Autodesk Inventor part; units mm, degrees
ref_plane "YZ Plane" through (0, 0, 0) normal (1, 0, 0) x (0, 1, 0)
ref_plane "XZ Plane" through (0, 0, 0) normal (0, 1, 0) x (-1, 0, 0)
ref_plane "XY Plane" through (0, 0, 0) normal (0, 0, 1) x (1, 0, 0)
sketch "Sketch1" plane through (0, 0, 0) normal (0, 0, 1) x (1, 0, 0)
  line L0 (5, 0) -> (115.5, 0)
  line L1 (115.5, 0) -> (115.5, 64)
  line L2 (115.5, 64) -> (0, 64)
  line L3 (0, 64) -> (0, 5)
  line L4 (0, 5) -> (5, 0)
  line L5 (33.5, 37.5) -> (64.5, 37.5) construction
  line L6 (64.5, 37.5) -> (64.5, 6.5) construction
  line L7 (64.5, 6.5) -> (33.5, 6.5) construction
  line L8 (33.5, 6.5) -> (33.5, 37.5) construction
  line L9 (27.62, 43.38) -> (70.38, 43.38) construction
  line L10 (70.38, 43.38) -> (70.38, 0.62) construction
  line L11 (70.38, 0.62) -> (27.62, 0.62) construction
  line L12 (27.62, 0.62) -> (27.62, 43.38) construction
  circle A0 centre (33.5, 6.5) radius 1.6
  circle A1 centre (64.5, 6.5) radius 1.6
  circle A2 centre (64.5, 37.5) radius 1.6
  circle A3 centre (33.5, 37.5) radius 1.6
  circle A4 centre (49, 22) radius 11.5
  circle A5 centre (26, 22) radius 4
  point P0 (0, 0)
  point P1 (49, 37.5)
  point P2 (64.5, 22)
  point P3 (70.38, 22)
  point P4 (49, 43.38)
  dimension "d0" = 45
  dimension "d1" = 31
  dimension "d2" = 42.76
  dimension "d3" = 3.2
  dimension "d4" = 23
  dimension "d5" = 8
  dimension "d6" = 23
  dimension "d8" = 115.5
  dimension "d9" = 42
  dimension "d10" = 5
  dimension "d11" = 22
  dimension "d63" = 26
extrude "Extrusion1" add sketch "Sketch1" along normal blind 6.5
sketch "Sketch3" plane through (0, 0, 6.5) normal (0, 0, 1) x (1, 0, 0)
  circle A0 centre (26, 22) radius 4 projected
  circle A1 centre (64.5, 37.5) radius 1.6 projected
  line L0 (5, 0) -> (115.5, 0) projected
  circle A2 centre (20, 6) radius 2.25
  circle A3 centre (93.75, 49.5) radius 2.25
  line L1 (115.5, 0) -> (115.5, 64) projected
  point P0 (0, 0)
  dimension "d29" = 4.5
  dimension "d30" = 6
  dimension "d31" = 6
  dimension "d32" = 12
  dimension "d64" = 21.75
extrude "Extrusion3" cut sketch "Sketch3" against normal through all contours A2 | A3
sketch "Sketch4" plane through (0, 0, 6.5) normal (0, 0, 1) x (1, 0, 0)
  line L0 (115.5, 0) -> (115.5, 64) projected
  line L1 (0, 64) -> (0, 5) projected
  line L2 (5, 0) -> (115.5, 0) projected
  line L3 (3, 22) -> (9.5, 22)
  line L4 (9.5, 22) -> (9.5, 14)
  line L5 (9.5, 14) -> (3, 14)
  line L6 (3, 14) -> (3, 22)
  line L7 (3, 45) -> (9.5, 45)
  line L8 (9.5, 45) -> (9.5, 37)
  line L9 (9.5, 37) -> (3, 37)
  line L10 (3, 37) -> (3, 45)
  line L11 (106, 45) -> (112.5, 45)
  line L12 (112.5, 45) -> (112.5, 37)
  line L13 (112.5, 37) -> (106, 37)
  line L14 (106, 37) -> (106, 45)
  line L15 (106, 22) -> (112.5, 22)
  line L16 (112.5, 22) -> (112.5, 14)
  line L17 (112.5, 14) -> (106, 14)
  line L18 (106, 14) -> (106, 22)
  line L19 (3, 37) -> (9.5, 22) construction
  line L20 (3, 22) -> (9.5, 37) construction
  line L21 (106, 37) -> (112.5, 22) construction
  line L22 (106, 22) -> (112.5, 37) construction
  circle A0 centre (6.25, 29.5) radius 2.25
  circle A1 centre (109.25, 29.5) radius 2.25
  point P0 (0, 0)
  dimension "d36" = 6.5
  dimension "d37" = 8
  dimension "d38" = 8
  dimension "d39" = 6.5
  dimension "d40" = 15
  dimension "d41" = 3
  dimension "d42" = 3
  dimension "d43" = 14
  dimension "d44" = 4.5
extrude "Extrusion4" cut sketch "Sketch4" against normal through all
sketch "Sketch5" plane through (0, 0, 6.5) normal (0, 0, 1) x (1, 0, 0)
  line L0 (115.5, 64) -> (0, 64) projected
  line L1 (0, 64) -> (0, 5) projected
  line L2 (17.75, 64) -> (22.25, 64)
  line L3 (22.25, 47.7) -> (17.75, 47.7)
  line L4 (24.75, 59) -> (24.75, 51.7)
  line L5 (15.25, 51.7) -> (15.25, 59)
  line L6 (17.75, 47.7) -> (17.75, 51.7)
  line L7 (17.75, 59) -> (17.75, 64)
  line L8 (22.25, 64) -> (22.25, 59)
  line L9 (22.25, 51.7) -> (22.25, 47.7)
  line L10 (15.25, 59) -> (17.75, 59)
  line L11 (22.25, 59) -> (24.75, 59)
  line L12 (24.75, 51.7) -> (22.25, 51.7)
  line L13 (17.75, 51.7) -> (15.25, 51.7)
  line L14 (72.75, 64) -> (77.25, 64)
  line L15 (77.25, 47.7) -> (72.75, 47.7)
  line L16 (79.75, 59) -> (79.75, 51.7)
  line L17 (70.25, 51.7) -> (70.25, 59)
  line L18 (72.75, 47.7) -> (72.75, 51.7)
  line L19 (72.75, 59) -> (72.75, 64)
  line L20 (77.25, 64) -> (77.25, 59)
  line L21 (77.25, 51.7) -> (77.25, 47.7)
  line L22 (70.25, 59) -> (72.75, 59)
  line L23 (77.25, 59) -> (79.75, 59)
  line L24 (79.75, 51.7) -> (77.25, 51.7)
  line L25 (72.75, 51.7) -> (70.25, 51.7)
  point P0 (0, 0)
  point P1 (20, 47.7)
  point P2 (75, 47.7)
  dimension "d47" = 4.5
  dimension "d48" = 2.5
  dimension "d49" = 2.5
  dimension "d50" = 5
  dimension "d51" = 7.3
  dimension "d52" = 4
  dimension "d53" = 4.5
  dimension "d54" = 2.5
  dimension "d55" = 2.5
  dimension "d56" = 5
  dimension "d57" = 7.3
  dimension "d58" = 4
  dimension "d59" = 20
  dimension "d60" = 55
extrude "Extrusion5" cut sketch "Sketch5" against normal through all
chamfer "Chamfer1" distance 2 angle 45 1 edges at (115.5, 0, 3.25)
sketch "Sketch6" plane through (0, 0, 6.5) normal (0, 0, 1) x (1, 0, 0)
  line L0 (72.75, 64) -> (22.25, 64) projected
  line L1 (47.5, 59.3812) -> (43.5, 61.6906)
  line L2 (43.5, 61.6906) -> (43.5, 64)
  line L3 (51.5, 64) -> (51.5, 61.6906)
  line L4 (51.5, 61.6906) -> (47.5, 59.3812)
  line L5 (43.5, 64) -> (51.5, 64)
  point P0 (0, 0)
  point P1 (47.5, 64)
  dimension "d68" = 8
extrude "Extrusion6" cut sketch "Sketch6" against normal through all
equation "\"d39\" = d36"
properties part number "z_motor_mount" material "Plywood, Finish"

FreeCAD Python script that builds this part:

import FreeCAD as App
import Part
import Sketcher
Q = App.Units.Quantity


def edges_at(feature, points):
    """Names of the edges that pass closest to the given points."""
    edges = feature.Shape.Edges
    near = lambda p: min(range(len(edges)), key=lambda i: edges[i].distToShape(Part.Vertex(*p))[0])
    return sorted({f"Edge{near(p) + 1}" for p in points})


def add_polygon(sketch, points):
    """Adds a closed chain of lines whose ends are joined by coincident constraints."""
    first, n = sketch.GeometryCount, len(points)
    for a, b in zip(points, points[1:] + points[:1]):
        sketch.addGeometry(Part.LineSegment(App.Vector(*a, 0), App.Vector(*b, 0)), False)
    for i in range(n):
        sketch.addConstraint(Sketcher.Constraint("Coincident", first + i, 2, first + (i + 1) % n, 1))

doc = App.newDocument("Part")
body = doc.addObject("PartDesign::Body", "Body")

sketch1 = body.newObject("Sketcher::SketchObject", "Sketch")
sketch1.AttachmentSupport = (doc.getObject("XY_Plane"), [""])
sketch1.MapMode = "FlatFace"
add_polygon(sketch1, [(0, 5), (5, 0), (115.5, 0), (115.5, 64), (0, 64)])
sketch1.addGeometry(Part.Circle(App.Vector(33.5, 6.5, 0), App.Vector(0, 0, 1), 1.6), False)
sketch1.addGeometry(Part.Circle(App.Vector(26, 22, 0), App.Vector(0, 0, 1), 4), False)
sketch1.addGeometry(Part.Circle(App.Vector(49, 22, 0), App.Vector(0, 0, 1), 11.5), False)
sketch1.addGeometry(Part.Circle(App.Vector(64.5, 6.5, 0), App.Vector(0, 0, 1), 1.6), False)
sketch1.addGeometry(Part.Circle(App.Vector(33.5, 37.5, 0), App.Vector(0, 0, 1), 1.6), False)
sketch1.addGeometry(Part.Circle(App.Vector(64.5, 37.5, 0), App.Vector(0, 0, 1), 1.6), False)
sketch1.addConstraint(Sketcher.Constraint("Horizontal", 1))
sketch1.addConstraint(Sketcher.Constraint("Vertical", 2))
sketch1.addConstraint(Sketcher.Constraint("Horizontal", 3))
sketch1.addConstraint(Sketcher.Constraint("Vertical", 4))
sketch1.addConstraint(Sketcher.Constraint("Equal", 5, 8))
sketch1.addConstraint(Sketcher.Constraint("Equal", 8, 9))
sketch1.addConstraint(Sketcher.Constraint("Equal", 9, 10))
sketch1.addConstraint(Sketcher.Constraint("PointOnObject", 0, 2, -1))
sketch1.addConstraint(Sketcher.Constraint("PointOnObject", 3, 2, -2))
sketch1.addConstraint(Sketcher.Constraint("Horizontal", 6, 3, 7, 3))
sketch1.addConstraint(Sketcher.Constraint("Horizontal", 5, 3, 8, 3))
sketch1.addConstraint(Sketcher.Constraint("Horizontal", 9, 3, 10, 3))
sketch1.addConstraint(Sketcher.Constraint("Vertical", 5, 3, 9, 3))
sketch1.addConstraint(Sketcher.Constraint("Vertical", 8, 3, 10, 3))
sketch1.addConstraint(Sketcher.Constraint("Diameter", 6, Q("8 mm")))
sketch1.addConstraint(Sketcher.Constraint("Diameter", 7, Q("23 mm")))
sketch1.addConstraint(Sketcher.Constraint("Diameter", 5, Q("3.2 mm")))
sketch1.addConstraint(Sketcher.Constraint("Angle", 0, Q("-45 deg")))
sketch1.addConstraint(Sketcher.Constraint("DistanceX", 3, 2, 3, 1, Q("115.5 mm")))
sketch1.addConstraint(Sketcher.Constraint("DistanceX", -1, 1, 6, 3, Q("26 mm")))
sketch1.addConstraint(Sketcher.Constraint("DistanceY", -1, 1, 6, 3, Q("22 mm")))
sketch1.addConstraint(Sketcher.Constraint("DistanceX", -1, 1, 0, 2, Q("5 mm")))
sketch1.addConstraint(Sketcher.Constraint("DistanceX", 6, 3, 7, 3, Q("23 mm")))
sketch1.addConstraint(Sketcher.Constraint("DistanceX", 5, 3, 8, 3, Q("31 mm")))
sketch1.addConstraint(Sketcher.Constraint("DistanceY", 5, 3, 9, 3, Q("31 mm")))
sketch1.addConstraint(Sketcher.Constraint("DistanceY", 7, 3, 2, 2, Q("42 mm")))
sketch1.addConstraint(Sketcher.Constraint("DistanceX", 8, 3, 1, 2, Q("51 mm")))
sketch1.addConstraint(Sketcher.Constraint("DistanceY", -1, 1, 5, 3, Q("6.5 mm")))
pad1 = body.newObject("PartDesign::Pad", "Pad")
pad1.Profile = sketch1
pad1.Length = 6.5

sketch2 = body.newObject("Sketcher::SketchObject", "Sketch001")
sketch2.AttachmentSupport = (doc.getObject("XY_Plane"), [""])
sketch2.MapMode = "FlatFace"
sketch2.AttachmentOffset = App.Placement(App.Vector(0, 0, 6.5), App.Rotation())
sketch2.addGeometry(Part.Circle(App.Vector(20, 6, 0), App.Vector(0, 0, 1), 2.2), False)
sketch2.addGeometry(Part.Circle(App.Vector(93.8, 49.5, 0), App.Vector(0, 0, 1), 2.2), False)
sketch2.addConstraint(Sketcher.Constraint("Equal", 0, 1))
sketch2.addConstraint(Sketcher.Constraint("Diameter", 0, Q("4.5 mm")))
sketch2.addConstraint(Sketcher.Constraint("DistanceY", -1, 1, 0, 3, Q("6 mm")))
sketch2.addConstraint(Sketcher.Constraint("DistanceX", -1, 1, 0, 3, Q("20 mm")))
sketch2.addConstraint(Sketcher.Constraint("DistanceY", -1, 1, 1, 3, Q("49.5 mm")))
sketch2.addConstraint(Sketcher.Constraint("DistanceX", -1, 1, 1, 3, Q("93.75 mm")))
pocket1 = body.newObject("PartDesign::Pocket", "Pocket")
pocket1.Profile = sketch2
pocket1.Type = "ThroughAll"

sketch3 = body.newObject("Sketcher::SketchObject", "Sketch002")
sketch3.AttachmentSupport = (doc.getObject("XY_Plane"), [""])
sketch3.MapMode = "FlatFace"
sketch3.AttachmentOffset = App.Placement(App.Vector(0, 0, 6.5), App.Rotation())
add_polygon(sketch3, [(9.5, 22), (3, 22), (3, 14), (9.5, 14)])
add_polygon(sketch3, [(9.5, 45), (3, 45), (3, 37), (9.5, 37)])
add_polygon(sketch3, [(112.5, 45), (106, 45), (106, 37), (112.5, 37)])
add_polygon(sketch3, [(112.5, 22), (106, 22), (106, 14), (112.5, 14)])
sketch3.addGeometry(Part.Circle(App.Vector(6.2, 29.5, 0), App.Vector(0, 0, 1), 2.2), False)
sketch3.addGeometry(Part.Circle(App.Vector(109.2, 29.5, 0), App.Vector(0, 0, 1), 2.2), False)
sketch3.addConstraint(Sketcher.Constraint("Horizontal", 0))
sketch3.addConstraint(Sketcher.Constraint("Vertical", 1))
sketch3.addConstraint(Sketcher.Constraint("Horizontal", 2))
sketch3.addConstraint(Sketcher.Constraint("Vertical", 3))
sketch3.addConstraint(Sketcher.Constraint("Horizontal", 4))
sketch3.addConstraint(Sketcher.Constraint("Vertical", 5))
sketch3.addConstraint(Sketcher.Constraint("Horizontal", 6))
sketch3.addConstraint(Sketcher.Constraint("Vertical", 7))
sketch3.addConstraint(Sketcher.Constraint("Horizontal", 8))
sketch3.addConstraint(Sketcher.Constraint("Vertical", 9))
sketch3.addConstraint(Sketcher.Constraint("Horizontal", 10))
sketch3.addConstraint(Sketcher.Constraint("Vertical", 11))
sketch3.addConstraint(Sketcher.Constraint("Horizontal", 12))
sketch3.addConstraint(Sketcher.Constraint("Vertical", 13))
sketch3.addConstraint(Sketcher.Constraint("Horizontal", 14))
sketch3.addConstraint(Sketcher.Constraint("Vertical", 15))
sketch3.addConstraint(Sketcher.Constraint("Equal", 16, 17))
sketch3.addConstraint(Sketcher.Constraint("Horizontal", 16, 3, 17, 3))
sketch3.addConstraint(Sketcher.Constraint("Horizontal", 7, 2, 8, 2))
sketch3.addConstraint(Sketcher.Constraint("Horizontal", 6, 2, 9, 2))
sketch3.addConstraint(Sketcher.Constraint("Horizontal", 3, 2, 12, 2))
sketch3.addConstraint(Sketcher.Constraint("Horizontal", 2, 2, 13, 2))
sketch3.addConstraint(Sketcher.Constraint("Vertical", 1, 2, 4, 2))
sketch3.addConstraint(Sketcher.Constraint("Vertical", 3, 2, 6, 2))
sketch3.addConstraint(Sketcher.Constraint("Vertical", 9, 2, 12, 2))
sketch3.addConstraint(Sketcher.Constraint("Vertical", 11, 2, 14, 2))
sketch3.addConstraint(Sketcher.Constraint("Equal", 6, 8))
sketch3.addConstraint(Sketcher.Constraint("Equal", 3, 5))
sketch3.addConstraint(Sketcher.Constraint("Diameter", 16, Q("4.5 mm")))
sketch3.addConstraint(Sketcher.Constraint("DistanceY", 1, 2, 1, 1, Q("8 mm")))
sketch3.addConstraint(Sketcher.Constraint("DistanceX", 0, 2, 0, 1, Q("6.5 mm")))
sketch3.addConstraint(Sketcher.Constraint("DistanceX", -1, 1, 0, 2, Q("3 mm")))
sketch3.addConstraint(Sketcher.Constraint("DistanceY", -1, 1, 1, 2, Q("14 mm")))
sketch3.addConstraint(Sketcher.Constraint("DistanceY", 0, 2, 5, 2, Q("15 mm")))
sketch3.addConstraint(Sketcher.Constraint("DistanceX", -1, 1, 8, 2, Q("106 mm")))
sketch3.addConstraint(Sketcher.Constraint("DistanceX", 16, 3, 17, 3, Q("103 mm")))
sketch3.addConstraint(Sketcher.Constraint("DistanceY", -1, 1, 16, 3, Q("29.5 mm")))
sketch3.addConstraint(Sketcher.Constraint("DistanceX", -1, 1, 16, 3, Q("6.25 mm")))
pocket2 = body.newObject("PartDesign::Pocket", "Pocket001")
pocket2.Profile = sketch3
pocket2.Type = "ThroughAll"

sketch4 = body.newObject("Sketcher::SketchObject", "Sketch003")
sketch4.AttachmentSupport = (doc.getObject("XY_Plane"), [""])
sketch4.MapMode = "FlatFace"
sketch4.AttachmentOffset = App.Placement(App.Vector(0, 0, 6.5), App.Rotation())
add_polygon(sketch4, [(77.2, 59), (77.2, 64), (72.8, 64), (72.8, 59), (70.2, 59), (70.2, 51.7), (72.8, 51.7), (72.8, 47.7), (77.2, 47.7), (77.2, 51.7), (79.8, 51.7), (79.8, 59)])
add_polygon(sketch4, [(22.2, 59), (22.2, 64), (17.8, 64), (17.8, 59), (15.2, 59), (15.2, 51.7), (17.8, 51.7), (17.8, 47.7), (22.2, 47.7), (22.2, 51.7), (24.8, 51.7), (24.8, 59)])
sketch4.addConstraint(Sketcher.Constraint("Vertical", 0))
sketch4.addConstraint(Sketcher.Constraint("Horizontal", 1))
sketch4.addConstraint(Sketcher.Constraint("Vertical", 2))
sketch4.addConstraint(Sketcher.Constraint("Horizontal", 3))
sketch4.addConstraint(Sketcher.Constraint("Vertical", 4))
sketch4.addConstraint(Sketcher.Constraint("Horizontal", 5))
sketch4.addConstraint(Sketcher.Constraint("Vertical", 6))
sketch4.addConstraint(Sketcher.Constraint("Horizontal", 7))
sketch4.addConstraint(Sketcher.Constraint("Vertical", 8))
sketch4.addConstraint(Sketcher.Constraint("Horizontal", 9))
sketch4.addConstraint(Sketcher.Constraint("Vertical", 10))
sketch4.addConstraint(Sketcher.Constraint("Horizontal", 11))
sketch4.addConstraint(Sketcher.Constraint("Vertical", 12))
sketch4.addConstraint(Sketcher.Constraint("Horizontal", 13))
sketch4.addConstraint(Sketcher.Constraint("Vertical", 14))
sketch4.addConstraint(Sketcher.Constraint("Horizontal", 15))
sketch4.addConstraint(Sketcher.Constraint("Vertical", 16))
sketch4.addConstraint(Sketcher.Constraint("Horizontal", 17))
sketch4.addConstraint(Sketcher.Constraint("Vertical", 18))
sketch4.addConstraint(Sketcher.Constraint("Horizontal", 19))
sketch4.addConstraint(Sketcher.Constraint("Vertical", 20))
sketch4.addConstraint(Sketcher.Constraint("Horizontal", 21))
sketch4.addConstraint(Sketcher.Constraint("Vertical", 22))
sketch4.addConstraint(Sketcher.Constraint("Horizontal", 23))
sketch4.addConstraint(Sketcher.Constraint("Horizontal", 5, 2, 8, 2))
sketch4.addConstraint(Sketcher.Constraint("Horizontal", 3, 2, 10, 2))
sketch4.addConstraint(Sketcher.Constraint("Horizontal", 1, 2, 12, 2))
sketch4.addConstraint(Sketcher.Constraint("Horizontal", 11, 2, 14, 2))
sketch4.addConstraint(Sketcher.Constraint("Horizontal", 9, 2, 16, 2))
sketch4.addConstraint(Sketcher.Constraint("Horizontal", 7, 2, 18, 2))
sketch4.addConstraint(Sketcher.Constraint("Horizontal", 17, 2, 20, 2))
sketch4.addConstraint(Sketcher.Constraint("Horizontal", 15, 2, 22, 2))
sketch4.addConstraint(Sketcher.Constraint("Vertical", 2, 2, 5, 2))
sketch4.addConstraint(Sketcher.Constraint("Vertical", 0, 2, 7, 2))
sketch4.addConstraint(Sketcher.Constraint("Vertical", 14, 2, 17, 2))
sketch4.addConstraint(Sketcher.Constraint("Vertical", 12, 2, 19, 2))
sketch4.addConstraint(Sketcher.Constraint("Equal", 5, 9))
sketch4.addConstraint(Sketcher.Constraint("Equal", 7, 13))
sketch4.addConstraint(Sketcher.Constraint("Equal", 11, 15))
sketch4.addConstraint(Sketcher.Constraint("Equal", 17, 21))
sketch4.addConstraint(Sketcher.Constraint("DistanceY", 0, 1, 0, 2, Q("5 mm")))
sketch4.addConstraint(Sketcher.Constraint("DistanceY", 6, 2, 6, 1, Q("4 mm")))
sketch4.addConstraint(Sketcher.Constraint("DistanceX", 1, 2, 1, 1, Q("4.5 mm")))
sketch4.addConstraint(Sketcher.Constraint("DistanceX", 3, 2, 3, 1, Q("2.5 mm")))
sketch4.addConstraint(Sketcher.Constraint("DistanceY", 4, 2, 4, 1, Q("7.3 mm")))
sketch4.addConstraint(Sketcher.Constraint("DistanceX", 13, 2, 1, 2, Q("55 mm")))
sketch4.addConstraint(Sketcher.Constraint("DistanceY", -1, 1, 0, 2, Q("64 mm")))
sketch4.addConstraint(Sketcher.Constraint("DistanceX", -1, 1, 0, 2, Q("77.25 mm")))
pocket3 = body.newObject("PartDesign::Pocket", "Pocket002")
pocket3.Profile = sketch4
pocket3.Type = "ThroughAll"
doc.recompute()

chamfer = body.newObject("PartDesign::Chamfer", "Chamfer")
chamfer.Base = (pocket3, edges_at(pocket3, [(115.5, 0, 3.25)]))
chamfer.Size = 2

sketch5 = body.newObject("Sketcher::SketchObject", "Sketch004")
sketch5.AttachmentSupport = (doc.getObject("XY_Plane"), [""])
sketch5.MapMode = "FlatFace"
sketch5.AttachmentOffset = App.Placement(App.Vector(0, 0, 6.5), App.Rotation())
add_polygon(sketch5, [(51.5, 61.7), (51.5, 64), (43.5, 64), (43.5, 61.7), (47.5, 59.4)])
sketch5.addConstraint(Sketcher.Constraint("Vertical", 0))
sketch5.addConstraint(Sketcher.Constraint("Horizontal", 1))
sketch5.addConstraint(Sketcher.Constraint("Vertical", 2))
sketch5.addConstraint(Sketcher.Constraint("Horizontal", 2, 2, 4, 2))
sketch5.addConstraint(Sketcher.Constraint("Equal", 3, 4))
sketch5.addConstraint(Sketcher.Constraint("DistanceX", 1, 2, 1, 1, Q("8 mm")))
sketch5.addConstraint(Sketcher.Constraint("Angle", 3, Q("-30 deg")))
sketch5.addConstraint(Sketcher.Constraint("DistanceY", -1, 1, 0, 2, Q("64 mm")))
sketch5.addConstraint(Sketcher.Constraint("DistanceX", -1, 1, 0, 2, Q("51.5 mm")))
sketch5.addConstraint(Sketcher.Constraint("DistanceY", 0, 1, 0, 2, Q("2.3094 mm")))
pocket4 = body.newObject("PartDesign::Pocket", "Pocket003")
pocket4.Profile = sketch5
pocket4.Type = "ThroughAll"

doc.recompute()
